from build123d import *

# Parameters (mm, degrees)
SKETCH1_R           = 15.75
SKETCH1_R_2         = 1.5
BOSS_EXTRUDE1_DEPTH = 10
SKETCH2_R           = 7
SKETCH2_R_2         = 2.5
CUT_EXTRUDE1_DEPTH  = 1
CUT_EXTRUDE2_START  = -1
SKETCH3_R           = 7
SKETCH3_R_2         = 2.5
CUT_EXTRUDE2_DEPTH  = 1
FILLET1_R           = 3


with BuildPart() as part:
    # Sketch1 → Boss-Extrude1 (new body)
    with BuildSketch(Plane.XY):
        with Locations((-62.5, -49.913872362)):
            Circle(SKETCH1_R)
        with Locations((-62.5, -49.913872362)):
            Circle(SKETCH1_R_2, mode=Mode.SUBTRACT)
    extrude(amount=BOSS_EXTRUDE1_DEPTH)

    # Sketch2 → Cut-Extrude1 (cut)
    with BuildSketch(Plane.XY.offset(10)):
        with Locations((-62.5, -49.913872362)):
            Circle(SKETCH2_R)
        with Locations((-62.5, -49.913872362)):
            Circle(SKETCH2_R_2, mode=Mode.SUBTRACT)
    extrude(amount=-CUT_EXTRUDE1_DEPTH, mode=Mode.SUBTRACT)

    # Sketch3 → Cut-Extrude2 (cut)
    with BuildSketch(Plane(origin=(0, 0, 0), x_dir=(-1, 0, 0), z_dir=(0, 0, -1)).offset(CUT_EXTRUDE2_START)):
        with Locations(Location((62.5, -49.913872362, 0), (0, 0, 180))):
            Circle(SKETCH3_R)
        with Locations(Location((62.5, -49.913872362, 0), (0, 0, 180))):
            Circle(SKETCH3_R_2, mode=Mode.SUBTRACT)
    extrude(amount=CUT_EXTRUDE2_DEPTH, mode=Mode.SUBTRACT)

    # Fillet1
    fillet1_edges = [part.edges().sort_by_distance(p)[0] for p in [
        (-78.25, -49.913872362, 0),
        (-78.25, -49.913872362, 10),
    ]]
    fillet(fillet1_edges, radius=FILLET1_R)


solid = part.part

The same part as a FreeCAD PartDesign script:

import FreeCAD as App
import Part
import Sketcher

V = App.Vector


def edges_at(feature, points):
    """Names of the edges that pass closest to the given points."""
    edges = feature.Shape.Edges
    near = lambda p: min(range(len(edges)), key=lambda i: edges[i].distToShape(Part.Vertex(*p))[0])
    return sorted({f"Edge{near(p) + 1}" for p in points})

doc = App.newDocument("Part")
params = doc.addObject("Spreadsheet::Sheet", "Params")
for row, (alias, value) in enumerate([
    ("sketch1_diameter", "3 mm"),
    ("sketch1_diameter2", "31.5 mm"),
    ("pad1_length", "10 mm"),
    ("sketch2_diameter", "14 mm"),
    ("sketch2_diameter2", "5 mm"),
    ("pocket1_length", "1 mm"),
    ("sketch3_diameter", "14 mm"),
    ("sketch3_diameter2", "5 mm"),
    ("pocket2_length", "1 mm"),
    ("fillet_radius", "3 mm"),
], start=1):
    params.set(f"A{row}", alias)
    params.set(f"B{row}", "=" + value)
    params.setAlias(f"B{row}", alias)

body = doc.addObject("PartDesign::Body", "Body")

# Sketch on XY plane
sketch1 = doc.addObject("Sketcher::SketchObject", "Sketch")
body.addObject(sketch1)
sketch1.AttachmentSupport = (doc.XY_Plane, [""])
sketch1.MapMode = "FlatFace"
sketch1.addGeometry(Part.Circle(V(-62.5, -49.9, 0), V(0, 0, 1), 15.8), False)
sketch1.addGeometry(Part.Circle(V(-62.5, -49.9, 0), V(0, 0, 1), 1.5), False)
sketch1.addConstraint(Sketcher.Constraint("Coincident", 1, 3, 0, 3))
sketch1.addConstraint(Sketcher.Constraint("Diameter", 1, 3.0))
sketch1.addConstraint(Sketcher.Constraint("Diameter", 0, 31.5))
sketch1.addConstraint(Sketcher.Constraint("DistanceX", 0, 3, -1, 1, 62.5))
sketch1.addConstraint(Sketcher.Constraint("DistanceY", 0, 3, -1, 1, 49.913872))
sketch1.setExpression("Constraints[1]", "Params.sketch1_diameter")
sketch1.setExpression("Constraints[2]", "Params.sketch1_diameter2")
pad1 = doc.addObject("PartDesign::Pad", "Pad")
body.addObject(pad1)
pad1.Profile = sketch1
pad1.setExpression("Length", "Params.pad1_length")

# Sketch on XY plane
sketch2 = doc.addObject("Sketcher::SketchObject", "Sketch001")
body.addObject(sketch2)
sketch2.AttachmentSupport = (doc.XY_Plane, [""])
sketch2.MapMode = "FlatFace"
sketch2.AttachmentOffset = App.Placement(V(0, 0, 10), App.Rotation())
sketch2.addGeometry(Part.Circle(V(-62.5, -49.9, 0), V(0, 0, 1), 7), False)
sketch2.addGeometry(Part.Circle(V(-62.5, -49.9, 0), V(0, 0, 1), 2.5), False)
sketch2.addConstraint(Sketcher.Constraint("Coincident", 1, 3, 0, 3))
sketch2.addConstraint(Sketcher.Constraint("Diameter", 0, 14.0))
sketch2.addConstraint(Sketcher.Constraint("Diameter", 1, 5.0))
sketch2.addConstraint(Sketcher.Constraint("DistanceX", 0, 3, -1, 1, 62.5))
sketch2.addConstraint(Sketcher.Constraint("DistanceY", 0, 3, -1, 1, 49.913872))
sketch2.setExpression("Constraints[1]", "Params.sketch2_diameter")
sketch2.setExpression("Constraints[2]", "Params.sketch2_diameter2")
pocket1 = doc.addObject("PartDesign::Pocket", "Pocket")
body.addObject(pocket1)
pocket1.Profile = sketch2
pocket1.setExpression("Length", "Params.pocket1_length")

# Sketch on XY plane
sketch3 = doc.addObject("Sketcher::SketchObject", "Sketch002")
body.addObject(sketch3)
sketch3.AttachmentSupport = (doc.XY_Plane, [""])
sketch3.MapMode = "FlatFace"
sketch3.AttachmentOffset = App.Placement(V(0, 0, 1), App.Rotation())
sketch3.addGeometry(Part.Circle(V(-62.5, -49.9, 0), V(0, 0, 1), 7), False)
sketch3.addGeometry(Part.Circle(V(-62.5, -49.9, 0), V(0, 0, 1), 2.5), False)
sketch3.addConstraint(Sketcher.Constraint("Coincident", 1, 3, 0, 3))
sketch3.addConstraint(Sketcher.Constraint("Diameter", 0, 14.0))
sketch3.addConstraint(Sketcher.Constraint("Diameter", 1, 5.0))
sketch3.addConstraint(Sketcher.Constraint("DistanceX", 0, 3, -1, 1, 62.5))
sketch3.addConstraint(Sketcher.Constraint("DistanceY", 0, 3, -1, 1, 49.913872))
sketch3.setExpression("Constraints[1]", "Params.sketch3_diameter")
sketch3.setExpression("Constraints[2]", "Params.sketch3_diameter2")
pocket2 = doc.addObject("PartDesign::Pocket", "Pocket001")
body.addObject(pocket2)
pocket2.Profile = sketch3
pocket2.setExpression("Length", "Params.pocket2_length")
doc.recompute()

fillet = doc.addObject("PartDesign::Fillet", "Fillet")
body.addObject(fillet)
fillet.Base = (pocket2, edges_at(pocket2, [(-78.25, -49.914, 0), (-78.25, -49.914, 10)]))
fillet.setExpression("Radius", "Params.fillet_radius")

doc.recompute()
